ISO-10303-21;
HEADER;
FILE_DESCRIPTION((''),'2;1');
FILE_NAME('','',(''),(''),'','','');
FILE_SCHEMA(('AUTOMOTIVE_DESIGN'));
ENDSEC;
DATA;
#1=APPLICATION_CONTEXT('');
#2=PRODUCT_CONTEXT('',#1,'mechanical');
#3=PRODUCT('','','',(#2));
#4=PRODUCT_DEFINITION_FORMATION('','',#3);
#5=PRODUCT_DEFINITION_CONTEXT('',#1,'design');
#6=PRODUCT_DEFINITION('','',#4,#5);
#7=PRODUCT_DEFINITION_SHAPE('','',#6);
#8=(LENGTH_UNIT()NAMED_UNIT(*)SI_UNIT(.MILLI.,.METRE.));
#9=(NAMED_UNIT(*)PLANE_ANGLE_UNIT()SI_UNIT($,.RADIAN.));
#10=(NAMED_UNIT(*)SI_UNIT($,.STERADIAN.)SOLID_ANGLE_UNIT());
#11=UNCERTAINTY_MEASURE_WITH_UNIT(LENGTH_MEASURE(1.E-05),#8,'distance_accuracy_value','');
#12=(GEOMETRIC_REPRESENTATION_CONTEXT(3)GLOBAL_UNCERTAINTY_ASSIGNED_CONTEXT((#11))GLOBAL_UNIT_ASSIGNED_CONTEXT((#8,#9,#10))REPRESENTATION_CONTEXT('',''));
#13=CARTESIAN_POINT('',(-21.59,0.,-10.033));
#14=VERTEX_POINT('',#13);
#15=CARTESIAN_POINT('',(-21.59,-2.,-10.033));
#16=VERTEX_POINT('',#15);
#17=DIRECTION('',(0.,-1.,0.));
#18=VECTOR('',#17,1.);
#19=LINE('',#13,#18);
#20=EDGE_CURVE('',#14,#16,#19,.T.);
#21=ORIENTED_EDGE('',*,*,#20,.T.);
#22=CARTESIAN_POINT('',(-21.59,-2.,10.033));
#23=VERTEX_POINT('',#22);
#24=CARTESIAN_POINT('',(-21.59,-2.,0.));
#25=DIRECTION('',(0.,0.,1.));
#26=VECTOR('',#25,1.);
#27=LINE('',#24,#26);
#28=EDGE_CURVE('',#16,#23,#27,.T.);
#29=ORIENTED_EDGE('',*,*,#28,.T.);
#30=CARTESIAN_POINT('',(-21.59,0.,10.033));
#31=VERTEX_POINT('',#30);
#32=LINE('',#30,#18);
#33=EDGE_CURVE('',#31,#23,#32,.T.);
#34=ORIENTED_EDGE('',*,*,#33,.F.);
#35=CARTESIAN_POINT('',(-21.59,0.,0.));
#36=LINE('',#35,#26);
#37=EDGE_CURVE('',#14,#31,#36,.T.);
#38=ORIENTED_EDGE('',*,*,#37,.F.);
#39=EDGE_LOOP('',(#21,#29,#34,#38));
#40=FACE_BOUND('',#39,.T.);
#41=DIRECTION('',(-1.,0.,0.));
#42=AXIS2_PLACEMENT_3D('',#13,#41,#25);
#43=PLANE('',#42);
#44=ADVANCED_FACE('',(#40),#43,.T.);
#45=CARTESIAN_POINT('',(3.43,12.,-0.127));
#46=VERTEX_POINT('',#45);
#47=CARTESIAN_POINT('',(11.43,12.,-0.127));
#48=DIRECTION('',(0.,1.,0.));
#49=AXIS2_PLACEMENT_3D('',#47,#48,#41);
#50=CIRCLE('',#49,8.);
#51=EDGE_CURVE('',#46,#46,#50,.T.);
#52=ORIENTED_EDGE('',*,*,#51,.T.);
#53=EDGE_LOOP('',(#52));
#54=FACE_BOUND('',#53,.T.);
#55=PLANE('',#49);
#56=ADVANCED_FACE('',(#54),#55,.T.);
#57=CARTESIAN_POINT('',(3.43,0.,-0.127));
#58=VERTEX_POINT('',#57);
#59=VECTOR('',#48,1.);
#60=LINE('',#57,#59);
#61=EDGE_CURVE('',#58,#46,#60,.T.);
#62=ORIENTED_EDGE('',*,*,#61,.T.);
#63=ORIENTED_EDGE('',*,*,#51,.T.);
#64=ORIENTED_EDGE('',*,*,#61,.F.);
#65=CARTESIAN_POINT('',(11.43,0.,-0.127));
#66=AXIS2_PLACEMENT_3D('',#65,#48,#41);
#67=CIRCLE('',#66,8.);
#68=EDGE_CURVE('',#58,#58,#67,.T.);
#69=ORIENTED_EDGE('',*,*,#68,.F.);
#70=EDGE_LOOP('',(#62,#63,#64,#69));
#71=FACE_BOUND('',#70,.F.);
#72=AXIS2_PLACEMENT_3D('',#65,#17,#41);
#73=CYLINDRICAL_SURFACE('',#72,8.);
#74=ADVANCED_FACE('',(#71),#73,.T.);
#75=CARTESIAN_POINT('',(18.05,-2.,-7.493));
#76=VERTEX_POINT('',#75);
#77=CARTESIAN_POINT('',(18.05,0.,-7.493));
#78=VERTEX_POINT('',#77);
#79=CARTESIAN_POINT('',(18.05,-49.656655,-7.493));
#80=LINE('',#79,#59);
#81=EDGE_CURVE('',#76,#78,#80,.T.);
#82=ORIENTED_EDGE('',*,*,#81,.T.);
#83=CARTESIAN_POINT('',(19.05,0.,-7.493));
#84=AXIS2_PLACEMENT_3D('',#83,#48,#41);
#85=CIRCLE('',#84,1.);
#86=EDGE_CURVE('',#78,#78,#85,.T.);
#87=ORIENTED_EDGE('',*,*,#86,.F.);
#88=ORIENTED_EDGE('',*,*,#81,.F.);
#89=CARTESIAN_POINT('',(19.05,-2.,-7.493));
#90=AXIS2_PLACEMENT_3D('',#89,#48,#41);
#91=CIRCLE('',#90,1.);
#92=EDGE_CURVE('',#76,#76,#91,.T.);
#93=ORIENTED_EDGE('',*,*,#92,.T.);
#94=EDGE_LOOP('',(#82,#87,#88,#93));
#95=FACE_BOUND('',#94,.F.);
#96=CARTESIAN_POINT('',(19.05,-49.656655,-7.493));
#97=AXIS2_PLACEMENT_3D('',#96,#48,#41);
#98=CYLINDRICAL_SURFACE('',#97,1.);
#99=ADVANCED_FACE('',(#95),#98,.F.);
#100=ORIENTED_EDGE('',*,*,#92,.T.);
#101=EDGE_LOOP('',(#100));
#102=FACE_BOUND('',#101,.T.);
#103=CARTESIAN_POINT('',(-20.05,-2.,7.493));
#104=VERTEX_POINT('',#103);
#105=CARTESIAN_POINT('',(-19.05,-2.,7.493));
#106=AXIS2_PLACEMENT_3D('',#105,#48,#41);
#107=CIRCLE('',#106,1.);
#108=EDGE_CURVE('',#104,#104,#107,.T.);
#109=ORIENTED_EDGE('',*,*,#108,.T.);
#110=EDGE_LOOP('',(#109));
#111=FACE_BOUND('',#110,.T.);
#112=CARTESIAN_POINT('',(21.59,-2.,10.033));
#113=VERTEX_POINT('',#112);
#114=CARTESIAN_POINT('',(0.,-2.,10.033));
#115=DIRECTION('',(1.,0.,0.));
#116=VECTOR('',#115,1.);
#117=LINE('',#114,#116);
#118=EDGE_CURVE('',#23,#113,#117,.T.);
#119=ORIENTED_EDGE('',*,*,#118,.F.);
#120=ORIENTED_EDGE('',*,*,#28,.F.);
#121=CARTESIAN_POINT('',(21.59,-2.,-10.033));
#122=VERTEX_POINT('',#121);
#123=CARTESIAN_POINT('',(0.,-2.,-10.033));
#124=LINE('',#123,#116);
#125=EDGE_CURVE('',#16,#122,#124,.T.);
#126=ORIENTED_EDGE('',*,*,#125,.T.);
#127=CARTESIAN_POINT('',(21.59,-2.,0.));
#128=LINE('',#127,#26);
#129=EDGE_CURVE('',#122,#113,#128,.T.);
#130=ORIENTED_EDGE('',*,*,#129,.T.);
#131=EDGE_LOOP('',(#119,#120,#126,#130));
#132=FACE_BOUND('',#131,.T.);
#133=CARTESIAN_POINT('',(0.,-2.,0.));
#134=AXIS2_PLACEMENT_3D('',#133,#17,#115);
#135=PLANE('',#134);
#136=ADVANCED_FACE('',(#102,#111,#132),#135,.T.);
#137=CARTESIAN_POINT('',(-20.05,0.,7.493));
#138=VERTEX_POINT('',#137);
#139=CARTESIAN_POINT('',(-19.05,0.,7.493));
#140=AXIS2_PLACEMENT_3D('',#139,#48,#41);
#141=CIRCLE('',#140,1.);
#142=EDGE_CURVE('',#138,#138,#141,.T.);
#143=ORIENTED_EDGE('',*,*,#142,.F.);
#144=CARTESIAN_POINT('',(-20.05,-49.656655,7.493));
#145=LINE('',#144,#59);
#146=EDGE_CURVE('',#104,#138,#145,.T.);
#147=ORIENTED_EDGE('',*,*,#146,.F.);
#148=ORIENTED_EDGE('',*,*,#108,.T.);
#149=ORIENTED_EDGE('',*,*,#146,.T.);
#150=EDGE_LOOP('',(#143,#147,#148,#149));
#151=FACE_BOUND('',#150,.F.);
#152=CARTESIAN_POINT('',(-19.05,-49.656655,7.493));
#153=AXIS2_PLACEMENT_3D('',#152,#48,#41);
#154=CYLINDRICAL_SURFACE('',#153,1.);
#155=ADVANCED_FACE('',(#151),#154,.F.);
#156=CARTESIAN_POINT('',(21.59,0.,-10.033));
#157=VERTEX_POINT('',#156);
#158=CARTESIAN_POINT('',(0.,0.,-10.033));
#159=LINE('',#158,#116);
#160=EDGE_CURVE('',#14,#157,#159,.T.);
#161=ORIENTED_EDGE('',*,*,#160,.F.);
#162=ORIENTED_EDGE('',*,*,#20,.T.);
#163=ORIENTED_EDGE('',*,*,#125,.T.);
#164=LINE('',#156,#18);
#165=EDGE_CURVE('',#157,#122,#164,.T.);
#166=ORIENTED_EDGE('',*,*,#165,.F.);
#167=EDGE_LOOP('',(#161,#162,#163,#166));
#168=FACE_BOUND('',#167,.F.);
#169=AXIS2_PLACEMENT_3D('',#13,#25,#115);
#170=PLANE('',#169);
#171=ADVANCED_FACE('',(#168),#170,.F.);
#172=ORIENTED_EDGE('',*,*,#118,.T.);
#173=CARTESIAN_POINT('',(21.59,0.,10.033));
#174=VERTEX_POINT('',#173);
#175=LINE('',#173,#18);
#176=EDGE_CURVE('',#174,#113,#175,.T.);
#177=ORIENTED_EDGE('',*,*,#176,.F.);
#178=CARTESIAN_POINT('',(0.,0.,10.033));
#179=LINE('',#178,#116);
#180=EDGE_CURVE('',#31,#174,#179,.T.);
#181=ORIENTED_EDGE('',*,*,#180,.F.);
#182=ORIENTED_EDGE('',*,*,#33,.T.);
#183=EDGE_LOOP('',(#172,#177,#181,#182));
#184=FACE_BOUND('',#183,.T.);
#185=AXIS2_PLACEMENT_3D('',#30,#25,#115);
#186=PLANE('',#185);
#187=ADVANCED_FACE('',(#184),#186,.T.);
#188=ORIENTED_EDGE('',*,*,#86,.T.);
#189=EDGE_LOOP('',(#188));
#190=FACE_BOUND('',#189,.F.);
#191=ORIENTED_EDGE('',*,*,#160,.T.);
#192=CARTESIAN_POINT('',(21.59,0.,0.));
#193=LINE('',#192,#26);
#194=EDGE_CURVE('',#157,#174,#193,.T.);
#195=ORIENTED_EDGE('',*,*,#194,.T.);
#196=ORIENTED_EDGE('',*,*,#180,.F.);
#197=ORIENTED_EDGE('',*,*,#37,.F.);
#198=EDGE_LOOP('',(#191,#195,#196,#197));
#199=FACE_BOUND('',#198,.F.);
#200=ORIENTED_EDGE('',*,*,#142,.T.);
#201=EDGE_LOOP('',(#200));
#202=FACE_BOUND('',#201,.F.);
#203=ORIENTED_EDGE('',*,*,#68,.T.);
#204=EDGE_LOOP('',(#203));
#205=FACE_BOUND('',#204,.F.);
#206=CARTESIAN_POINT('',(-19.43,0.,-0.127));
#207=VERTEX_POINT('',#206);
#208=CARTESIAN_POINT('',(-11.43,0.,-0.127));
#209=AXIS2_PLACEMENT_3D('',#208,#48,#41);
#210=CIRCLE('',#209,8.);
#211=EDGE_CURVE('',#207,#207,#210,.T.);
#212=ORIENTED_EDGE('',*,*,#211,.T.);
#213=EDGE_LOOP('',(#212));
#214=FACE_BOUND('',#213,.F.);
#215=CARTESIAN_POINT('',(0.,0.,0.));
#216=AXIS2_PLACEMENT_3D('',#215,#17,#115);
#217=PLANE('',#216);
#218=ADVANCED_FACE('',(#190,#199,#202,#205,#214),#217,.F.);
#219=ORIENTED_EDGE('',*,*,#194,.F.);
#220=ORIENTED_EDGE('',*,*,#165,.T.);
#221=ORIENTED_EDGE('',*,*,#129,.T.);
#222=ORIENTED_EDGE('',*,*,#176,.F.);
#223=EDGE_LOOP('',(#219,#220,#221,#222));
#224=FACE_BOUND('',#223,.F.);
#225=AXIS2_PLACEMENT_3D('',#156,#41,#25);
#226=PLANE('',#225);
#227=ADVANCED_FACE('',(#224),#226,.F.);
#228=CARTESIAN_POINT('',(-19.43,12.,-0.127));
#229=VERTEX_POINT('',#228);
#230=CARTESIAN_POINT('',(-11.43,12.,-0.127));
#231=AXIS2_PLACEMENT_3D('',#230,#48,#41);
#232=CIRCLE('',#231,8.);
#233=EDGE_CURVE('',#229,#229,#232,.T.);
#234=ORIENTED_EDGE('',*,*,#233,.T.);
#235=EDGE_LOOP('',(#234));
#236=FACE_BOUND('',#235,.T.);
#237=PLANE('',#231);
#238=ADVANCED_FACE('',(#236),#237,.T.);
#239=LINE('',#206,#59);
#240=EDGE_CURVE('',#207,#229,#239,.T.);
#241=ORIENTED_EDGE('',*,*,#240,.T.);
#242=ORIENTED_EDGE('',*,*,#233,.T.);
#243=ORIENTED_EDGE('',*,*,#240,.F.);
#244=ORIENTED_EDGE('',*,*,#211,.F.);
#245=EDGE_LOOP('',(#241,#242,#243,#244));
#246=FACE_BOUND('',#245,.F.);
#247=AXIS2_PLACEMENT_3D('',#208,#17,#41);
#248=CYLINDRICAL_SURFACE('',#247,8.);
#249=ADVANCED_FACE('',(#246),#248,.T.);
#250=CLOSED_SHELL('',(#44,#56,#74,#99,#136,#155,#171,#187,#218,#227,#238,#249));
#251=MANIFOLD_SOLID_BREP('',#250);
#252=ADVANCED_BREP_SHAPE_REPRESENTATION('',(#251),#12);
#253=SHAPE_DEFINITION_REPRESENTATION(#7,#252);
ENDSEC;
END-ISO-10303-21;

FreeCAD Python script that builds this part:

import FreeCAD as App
import Part
import Sketcher

V = App.Vector
Q = App.Units.Quantity


def add_polygon(sketch, points):
    """Adds a closed chain of lines whose ends are joined by coincident constraints."""
    first, n = sketch.GeometryCount, len(points)
    for a, b in zip(points, points[1:] + points[:1]):
        sketch.addGeometry(Part.LineSegment(App.Vector(*a, 0), App.Vector(*b, 0)), False)
    for i in range(n):
        sketch.addConstraint(Sketcher.Constraint("Coincident", first + i, 2, first + (i + 1) % n, 1))

doc = App.newDocument("Part")
body = doc.addObject("PartDesign::Body", "Body")

# Sketch on XZ plane
sketch1 = body.newObject("Sketcher::SketchObject", "Sketch")
sketch1.AttachmentSupport = (doc.getObject("XZ_Plane"), [""])
sketch1.MapMode = "FlatFace"
add_polygon(sketch1, [(-21.59, 10.033), (-21.59, -10.033), (21.59, -10.033), (21.59, 10.033)])  # lines 0-3
sketch1.addConstraint([
    Sketcher.Constraint("Vertical", 0),
    Sketcher.Constraint("Horizontal", 1),
    Sketcher.Constraint("Vertical", 2),
    Sketcher.Constraint("Horizontal", 3),
    Sketcher.Constraint("Symmetric", 0, 2, 2, 2, -1, 1),
    Sketcher.Constraint("DistanceX", 1, 1, 1, 2, Q("43.18 mm")),
    Sketcher.Constraint("DistanceY", 0, 2, 0, 1, Q("20.066 mm")),
])
pad1 = body.newObject("PartDesign::Pad", "Pad")
pad1.Profile = sketch1
pad1.Length = 2

# Sketch on XZ plane
sketch2 = body.newObject("Sketcher::SketchObject", "Sketch001")
sketch2.AttachmentSupport = (doc.getObject("XZ_Plane"), [""])
sketch2.MapMode = "FlatFace"
sketch2.AttachmentOffset = App.Placement(V(0, 0, 2), App.Rotation())
sketch2.addGeometry([
    Part.Circle(V(-19.05, 7.493, 0), V(0, 0, 1), 1),
    Part.Circle(V(19.05, -7.493, 0), V(0, 0, 1), 1),
], False)
sketch2.addConstraint([
    Sketcher.Constraint("Equal", 0, 1),
    Sketcher.Constraint("Symmetric", 0, 3, 1, 3, -1, 1),
    Sketcher.Constraint("Diameter", 0, Q("2 mm")),
    Sketcher.Constraint("DistanceX", 0, 3, 1, 3, Q("38.1 mm")),
    Sketcher.Constraint("DistanceY", -1, 1, 0, 3, Q("7.493 mm")),
])
doc.recompute()
hole = body.newObject("PartDesign::Hole", "Hole")
hole.Profile = sketch2
hole.ThreadType = "None"
hole.Diameter = 2
hole.DepthType = "ThroughAll"

# Sketch on XZ plane
sketch3 = body.newObject("Sketcher::SketchObject", "Sketch002")
sketch3.AttachmentSupport = (doc.getObject("XZ_Plane"), [""])
sketch3.MapMode = "FlatFace"
sketch3.addGeometry([
    Part.Circle(V(-11.43, -0.127, 0), V(0, 0, 1), 8),
    Part.Circle(V(11.43, -0.127, 0), V(0, 0, 1), 8),
], False)
sketch3.addConstraint([
    Sketcher.Constraint("Equal", 0, 1),
    Sketcher.Constraint("Symmetric", 0, 3, 1, 3, -2),
    Sketcher.Constraint("Diameter", 0, Q("16 mm")),
    Sketcher.Constraint("DistanceX", 0, 3, -1, 1, Q("11.43 mm")),
    Sketcher.Constraint("DistanceY", 0, 3, -1, 1, Q("0.127 mm")),
])
pad2 = body.newObject("PartDesign::Pad", "Pad001")
pad2.Profile = sketch3
pad2.Length = 12
pad2.Reversed = True

doc.recompute()
